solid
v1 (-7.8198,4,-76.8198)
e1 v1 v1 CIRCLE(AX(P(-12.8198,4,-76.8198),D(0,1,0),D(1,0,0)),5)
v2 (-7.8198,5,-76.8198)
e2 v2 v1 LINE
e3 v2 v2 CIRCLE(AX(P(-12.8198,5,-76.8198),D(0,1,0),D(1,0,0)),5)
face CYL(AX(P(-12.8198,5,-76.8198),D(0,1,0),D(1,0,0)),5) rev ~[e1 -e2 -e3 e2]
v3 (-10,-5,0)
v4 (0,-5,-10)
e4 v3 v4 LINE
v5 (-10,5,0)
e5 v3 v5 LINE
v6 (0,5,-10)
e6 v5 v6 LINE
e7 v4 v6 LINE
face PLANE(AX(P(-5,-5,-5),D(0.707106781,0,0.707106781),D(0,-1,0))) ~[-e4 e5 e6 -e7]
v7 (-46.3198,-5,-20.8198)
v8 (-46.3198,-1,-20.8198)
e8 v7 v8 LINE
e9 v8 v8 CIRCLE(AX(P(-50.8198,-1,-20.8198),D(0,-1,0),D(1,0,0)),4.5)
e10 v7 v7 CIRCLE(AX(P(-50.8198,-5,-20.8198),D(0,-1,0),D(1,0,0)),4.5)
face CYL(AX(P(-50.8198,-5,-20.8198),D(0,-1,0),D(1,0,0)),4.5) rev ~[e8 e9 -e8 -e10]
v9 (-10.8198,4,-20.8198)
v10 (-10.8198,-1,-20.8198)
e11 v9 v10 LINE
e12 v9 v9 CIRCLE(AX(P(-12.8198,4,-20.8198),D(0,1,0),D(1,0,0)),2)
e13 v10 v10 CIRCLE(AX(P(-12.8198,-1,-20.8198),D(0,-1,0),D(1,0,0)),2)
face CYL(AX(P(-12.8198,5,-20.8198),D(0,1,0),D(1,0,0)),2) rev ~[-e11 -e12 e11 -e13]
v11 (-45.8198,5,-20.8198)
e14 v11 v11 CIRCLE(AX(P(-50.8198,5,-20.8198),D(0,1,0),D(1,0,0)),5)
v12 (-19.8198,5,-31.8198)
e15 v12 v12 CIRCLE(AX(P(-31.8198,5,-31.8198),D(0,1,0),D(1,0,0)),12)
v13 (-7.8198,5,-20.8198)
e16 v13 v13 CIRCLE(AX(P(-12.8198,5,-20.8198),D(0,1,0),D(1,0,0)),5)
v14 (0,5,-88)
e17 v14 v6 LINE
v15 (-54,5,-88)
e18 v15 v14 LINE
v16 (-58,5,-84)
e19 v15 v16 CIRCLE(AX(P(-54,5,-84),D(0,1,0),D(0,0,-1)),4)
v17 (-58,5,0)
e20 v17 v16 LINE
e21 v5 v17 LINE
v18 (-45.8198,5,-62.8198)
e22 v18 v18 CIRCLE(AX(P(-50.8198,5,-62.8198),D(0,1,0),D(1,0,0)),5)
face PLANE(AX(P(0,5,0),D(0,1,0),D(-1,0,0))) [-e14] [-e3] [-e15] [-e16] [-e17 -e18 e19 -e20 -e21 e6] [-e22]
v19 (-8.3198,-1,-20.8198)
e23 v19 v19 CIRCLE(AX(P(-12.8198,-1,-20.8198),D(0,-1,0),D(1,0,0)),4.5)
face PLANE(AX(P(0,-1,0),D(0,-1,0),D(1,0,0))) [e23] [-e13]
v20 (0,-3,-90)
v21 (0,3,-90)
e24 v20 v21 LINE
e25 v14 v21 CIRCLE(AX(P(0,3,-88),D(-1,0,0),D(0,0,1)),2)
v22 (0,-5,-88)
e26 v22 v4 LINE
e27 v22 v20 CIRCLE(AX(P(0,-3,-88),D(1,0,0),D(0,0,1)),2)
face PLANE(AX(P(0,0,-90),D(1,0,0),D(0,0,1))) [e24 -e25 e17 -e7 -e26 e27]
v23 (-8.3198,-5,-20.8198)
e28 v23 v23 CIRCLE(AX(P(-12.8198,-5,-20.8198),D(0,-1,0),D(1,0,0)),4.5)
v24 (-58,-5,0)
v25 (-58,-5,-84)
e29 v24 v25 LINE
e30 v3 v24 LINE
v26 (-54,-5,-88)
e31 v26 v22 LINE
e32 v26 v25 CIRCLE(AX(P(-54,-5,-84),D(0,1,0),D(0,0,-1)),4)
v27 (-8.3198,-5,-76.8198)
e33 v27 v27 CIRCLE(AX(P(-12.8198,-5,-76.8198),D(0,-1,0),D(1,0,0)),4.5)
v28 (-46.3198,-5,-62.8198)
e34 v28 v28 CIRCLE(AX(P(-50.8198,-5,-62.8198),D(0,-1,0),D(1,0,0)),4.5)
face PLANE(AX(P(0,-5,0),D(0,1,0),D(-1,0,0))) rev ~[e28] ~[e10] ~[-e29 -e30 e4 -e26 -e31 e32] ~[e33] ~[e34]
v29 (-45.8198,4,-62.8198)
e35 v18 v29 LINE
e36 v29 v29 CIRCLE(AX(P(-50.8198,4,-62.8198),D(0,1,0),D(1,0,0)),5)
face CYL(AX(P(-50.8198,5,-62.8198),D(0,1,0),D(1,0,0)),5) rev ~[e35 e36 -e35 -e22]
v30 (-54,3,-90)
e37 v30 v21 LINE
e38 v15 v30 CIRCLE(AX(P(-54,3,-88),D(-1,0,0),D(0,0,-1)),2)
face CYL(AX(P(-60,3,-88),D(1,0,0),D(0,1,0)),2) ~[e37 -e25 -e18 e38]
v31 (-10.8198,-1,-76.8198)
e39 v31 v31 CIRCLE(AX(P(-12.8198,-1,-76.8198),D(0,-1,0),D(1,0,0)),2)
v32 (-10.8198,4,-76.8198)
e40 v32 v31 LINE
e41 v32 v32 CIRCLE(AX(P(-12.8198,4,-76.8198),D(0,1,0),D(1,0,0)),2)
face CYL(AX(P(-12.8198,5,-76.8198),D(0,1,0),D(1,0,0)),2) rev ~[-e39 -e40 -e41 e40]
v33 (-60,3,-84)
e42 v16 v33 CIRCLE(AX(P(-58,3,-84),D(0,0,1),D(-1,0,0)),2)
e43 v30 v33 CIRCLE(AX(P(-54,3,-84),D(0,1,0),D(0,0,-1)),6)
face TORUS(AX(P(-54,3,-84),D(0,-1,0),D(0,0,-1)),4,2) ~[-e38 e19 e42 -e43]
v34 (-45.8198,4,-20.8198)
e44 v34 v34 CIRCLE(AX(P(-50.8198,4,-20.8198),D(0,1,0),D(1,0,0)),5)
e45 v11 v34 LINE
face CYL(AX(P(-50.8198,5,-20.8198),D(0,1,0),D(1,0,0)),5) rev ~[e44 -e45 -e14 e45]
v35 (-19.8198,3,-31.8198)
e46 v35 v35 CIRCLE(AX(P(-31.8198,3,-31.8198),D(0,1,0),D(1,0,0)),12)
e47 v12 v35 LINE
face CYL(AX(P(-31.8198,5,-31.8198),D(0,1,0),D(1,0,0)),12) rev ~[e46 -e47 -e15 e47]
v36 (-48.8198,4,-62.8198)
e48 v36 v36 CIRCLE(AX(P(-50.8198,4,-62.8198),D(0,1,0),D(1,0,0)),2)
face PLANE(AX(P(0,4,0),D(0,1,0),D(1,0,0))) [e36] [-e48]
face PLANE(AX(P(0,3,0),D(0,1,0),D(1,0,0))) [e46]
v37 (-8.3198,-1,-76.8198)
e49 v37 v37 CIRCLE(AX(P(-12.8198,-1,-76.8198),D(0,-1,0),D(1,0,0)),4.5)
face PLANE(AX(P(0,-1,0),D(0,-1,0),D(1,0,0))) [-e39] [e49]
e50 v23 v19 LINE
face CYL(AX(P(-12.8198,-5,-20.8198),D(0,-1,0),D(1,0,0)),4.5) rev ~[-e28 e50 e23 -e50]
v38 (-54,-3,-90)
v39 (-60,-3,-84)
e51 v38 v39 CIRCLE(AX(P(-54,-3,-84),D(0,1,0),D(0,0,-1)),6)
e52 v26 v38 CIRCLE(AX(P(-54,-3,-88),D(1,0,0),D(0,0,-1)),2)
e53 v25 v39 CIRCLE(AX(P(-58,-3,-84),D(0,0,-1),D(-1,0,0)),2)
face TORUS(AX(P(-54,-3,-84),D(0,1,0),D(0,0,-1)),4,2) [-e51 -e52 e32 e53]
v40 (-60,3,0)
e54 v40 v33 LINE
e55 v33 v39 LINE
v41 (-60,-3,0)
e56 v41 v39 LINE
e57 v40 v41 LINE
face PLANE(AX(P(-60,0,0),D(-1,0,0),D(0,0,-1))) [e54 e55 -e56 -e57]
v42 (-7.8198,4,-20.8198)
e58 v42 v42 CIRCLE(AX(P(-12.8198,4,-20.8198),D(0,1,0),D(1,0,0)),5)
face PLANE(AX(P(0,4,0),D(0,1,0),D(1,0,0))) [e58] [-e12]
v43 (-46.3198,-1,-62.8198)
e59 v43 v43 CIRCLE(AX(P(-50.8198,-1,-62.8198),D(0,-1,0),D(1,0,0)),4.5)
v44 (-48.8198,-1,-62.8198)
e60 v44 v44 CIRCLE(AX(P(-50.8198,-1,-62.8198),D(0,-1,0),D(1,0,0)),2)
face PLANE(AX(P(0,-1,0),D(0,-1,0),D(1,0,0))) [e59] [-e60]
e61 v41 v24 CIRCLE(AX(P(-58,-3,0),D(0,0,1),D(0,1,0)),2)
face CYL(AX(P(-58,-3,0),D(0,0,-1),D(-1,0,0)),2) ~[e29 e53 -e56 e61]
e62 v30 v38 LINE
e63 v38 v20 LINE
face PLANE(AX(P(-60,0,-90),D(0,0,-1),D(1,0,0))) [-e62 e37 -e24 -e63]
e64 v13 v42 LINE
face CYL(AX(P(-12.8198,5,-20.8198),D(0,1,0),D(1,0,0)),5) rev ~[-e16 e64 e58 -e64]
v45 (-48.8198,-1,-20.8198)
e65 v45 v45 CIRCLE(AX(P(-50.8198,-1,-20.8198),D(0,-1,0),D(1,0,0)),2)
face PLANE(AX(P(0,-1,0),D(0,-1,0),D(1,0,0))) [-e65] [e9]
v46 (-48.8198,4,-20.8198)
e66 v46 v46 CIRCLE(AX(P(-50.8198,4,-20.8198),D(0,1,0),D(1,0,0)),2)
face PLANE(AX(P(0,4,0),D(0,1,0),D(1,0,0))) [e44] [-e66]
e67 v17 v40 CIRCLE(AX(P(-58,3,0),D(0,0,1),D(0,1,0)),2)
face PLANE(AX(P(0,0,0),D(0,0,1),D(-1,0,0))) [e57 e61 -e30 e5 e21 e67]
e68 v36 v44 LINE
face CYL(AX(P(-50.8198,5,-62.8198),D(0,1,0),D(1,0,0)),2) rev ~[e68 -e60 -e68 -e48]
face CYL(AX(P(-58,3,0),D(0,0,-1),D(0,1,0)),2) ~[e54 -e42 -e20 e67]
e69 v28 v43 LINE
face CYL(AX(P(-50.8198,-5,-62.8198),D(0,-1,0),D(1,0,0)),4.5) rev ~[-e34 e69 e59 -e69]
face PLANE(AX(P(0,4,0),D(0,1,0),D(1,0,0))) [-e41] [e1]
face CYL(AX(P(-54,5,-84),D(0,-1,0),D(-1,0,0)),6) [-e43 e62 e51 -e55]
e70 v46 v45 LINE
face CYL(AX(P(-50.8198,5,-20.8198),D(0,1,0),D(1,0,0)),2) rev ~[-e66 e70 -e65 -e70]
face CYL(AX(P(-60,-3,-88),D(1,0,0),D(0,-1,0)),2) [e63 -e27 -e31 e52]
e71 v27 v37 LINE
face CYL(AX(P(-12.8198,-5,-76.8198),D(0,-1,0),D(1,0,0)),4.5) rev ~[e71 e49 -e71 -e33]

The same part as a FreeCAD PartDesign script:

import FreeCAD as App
import Part
import Sketcher
from FreeCAD import Vector


def edges_at(feature, points):
    """Names of the edges that pass closest to the given points."""
    edges = feature.Shape.Edges
    near = lambda p: min(range(len(edges)), key=lambda i: edges[i].distToShape(Part.Vertex(*p))[0])
    return sorted({f"Edge{near(p) + 1}" for p in points})


def add_polygon(sketch, points):
    """Adds a closed chain of lines whose ends are joined by coincident constraints."""
    first, n = sketch.GeometryCount, len(points)
    for a, b in zip(points, points[1:] + points[:1]):
        sketch.addGeometry(Part.LineSegment(App.Vector(*a, 0), App.Vector(*b, 0)), False)
    for i in range(n):
        sketch.addConstraint(Sketcher.Constraint("Coincident", first + i, 2, first + (i + 1) % n, 1))

doc = App.newDocument("Part")
body = doc.addObject("PartDesign::Body", "Body")

sketch1 = body.newObject("Sketcher::SketchObject", "Sketch")
sketch1.AttachmentSupport = (doc.getObject("XZ_Plane"), [""])
sketch1.MapMode = "FlatFace"
add_polygon(sketch1, [(-60, 0), (0, 0), (0, -90), (-60, -90)])
sketch1.addConstraint([
    Sketcher.Constraint("Horizontal", 0),
    Sketcher.Constraint("Vertical", 1),
    Sketcher.Constraint("Horizontal", 2),
    Sketcher.Constraint("Vertical", 3),
    Sketcher.Constraint("Coincident", 0, 2, -1, 1),
    Sketcher.Constraint("DistanceX", 0, 1, 0, 2, 60.0),
    Sketcher.Constraint("DistanceY", 1, 2, 1, 1, 90.0),
])
pad1 = body.newObject("PartDesign::Pad", "Pad")
pad1.Profile = sketch1
pad1.Length = 10
pad1.Midplane = True

sketch2 = body.newObject("Sketcher::SketchObject", "Sketch001")
sketch2.AttachmentSupport = (doc.getObject("XZ_Plane"), [""])
sketch2.MapMode = "FlatFace"
sketch2.AttachmentOffset = App.Placement(Vector(0, 0, -5), App.Rotation())
sketch2.addGeometry(Part.Circle(Vector(-32, -32, 0), Vector(0, 0, 1), 12), False)
sketch2.addConstraint([
    Sketcher.Constraint("Diameter", 0, 24.0),
    Sketcher.Constraint("DistanceX", 0, 3, -1, 1, 31.8198),
    Sketcher.Constraint("DistanceY", 0, 3, -1, 1, 31.8198),
])
pocket1 = body.newObject("PartDesign::Pocket", "Pocket")
pocket1.Profile = sketch2
pocket1.Length = 2
pocket1.Reversed = True
doc.recompute()

chamfer = body.newObject("PartDesign::Chamfer", "Chamfer")
chamfer.Base = (pocket1, edges_at(pocket1, [(0, 0, 0)]))
chamfer.Size = 10
doc.recompute()

fillet = body.newObject("PartDesign::Fillet", "Fillet")
fillet.Base = (chamfer, edges_at(chamfer, [(-60, 0, -90)]))
fillet.Radius = 6
doc.recompute()

fillet2 = body.newObject("PartDesign::Fillet", "Fillet001")
fillet2.Base = (fillet, edges_at(fillet, [
    (-30, 5, -90),
    (-30, -5, -90),
    (-60, -5, -45),
    (-60, 5, -45),
]))
fillet2.Radius = 2

sketch3 = body.newObject("Sketcher::SketchObject", "Sketch002")
sketch3.AttachmentSupport = (doc.getObject("XZ_Plane"), [""])
sketch3.MapMode = "FlatFace"
sketch3.AttachmentOffset = App.Placement(Vector(0, 0, -5), App.Rotation())
sketch3.addGeometry([
    Part.Circle(Vector(-12.8, -20.8, 0), Vector(0, 0, 1), 2),
    Part.Circle(Vector(-50.8, -20.8, 0), Vector(0, 0, 1), 2),
    Part.Circle(Vector(-12.8, -76.8, 0), Vector(0, 0, 1), 2),
    Part.Circle(Vector(-50.8, -62.8, 0), Vector(0, 0, 1), 2),
], False)
sketch3.addConstraint([
    Sketcher.Constraint("Equal", 0, 1),
    Sketcher.Constraint("Equal", 1, 2),
    Sketcher.Constraint("Equal", 2, 3),
    Sketcher.Constraint("Horizontal", 0, 3, 1, 3),
    Sketcher.Constraint("Vertical", 0, 3, 2, 3),
    Sketcher.Constraint("Vertical", 1, 3, 3, 3),
    Sketcher.Constraint("Diameter", 0, 4.0),
    Sketcher.Constraint("DistanceX", 1, 3, 0, 3, 38.0),
    Sketcher.Constraint("DistanceY", 2, 3, 0, 3, 56.0),
    Sketcher.Constraint("DistanceY", 2, 3, 3, 3, 14.0),
    Sketcher.Constraint("DistanceX", 0, 3, -1, 1, 12.8198),
    Sketcher.Constraint("DistanceY", 0, 3, -1, 1, 20.8198),
])
pocket2 = body.newObject("PartDesign::Pocket", "Pocket001")
pocket2.Profile = sketch3
pocket2.Length = 10
pocket2.Reversed = True

sketch4 = body.newObject("Sketcher::SketchObject", "Sketch003")
sketch4.AttachmentSupport = (doc.getObject("XZ_Plane"), [""])
sketch4.MapMode = "FlatFace"
sketch4.AttachmentOffset = App.Placement(Vector(0, 0, 5), App.Rotation())
sketch4.addGeometry([
    Part.Circle(Vector(-50.8, -20.8, 0), Vector(0, 0, 1), 4.5),
    Part.Circle(Vector(-50.8, -20.8, 0), Vector(0, 0, 1), 2),
    Part.Circle(Vector(-12.8, -20.8, 0), Vector(0, 0, 1), 4.5),
    Part.Circle(Vector(-12.8, -20.8, 0), Vector(0, 0, 1), 2),
    Part.Circle(Vector(-50.8, -62.8, 0), Vector(0, 0, 1), 4.5),
    Part.Circle(Vector(-50.8, -62.8, 0), Vector(0, 0, 1), 2),
    Part.Circle(Vector(-12.8, -76.8, 0), Vector(0, 0, 1), 4.5),
    Part.Circle(Vector(-12.8, -76.8, 0), Vector(0, 0, 1), 2),
], False)
sketch4.addConstraint([
    Sketcher.Constraint("Coincident", 1, 3, 0, 3),
    Sketcher.Constraint("Coincident", 3, 3, 2, 3),
    Sketcher.Constraint("Coincident", 5, 3, 4, 3),
    Sketcher.Constraint("Coincident", 7, 3, 6, 3),
    Sketcher.Constraint("Equal", 0, 2),
    Sketcher.Constraint("Equal", 1, 3),
    Sketcher.Constraint("Equal", 2, 4),
    Sketcher.Constraint("Equal", 3, 5),
    Sketcher.Constraint("Equal", 4, 6),
    Sketcher.Constraint("Equal", 5, 7),
    Sketcher.Constraint("Horizontal", 1, 3, 2, 3),
    Sketcher.Constraint("Vertical", 1, 3, 4, 3),
    Sketcher.Constraint("Vertical", 3, 3, 6, 3),
    Sketcher.Constraint("Diameter", 0, 9.0),
    Sketcher.Constraint("Diameter", 1, 4.0),
    Sketcher.Constraint("DistanceX", 0, 3, 2, 3, 38.0),
    Sketcher.Constraint("DistanceY", 4, 3, 0, 3, 42.0),
    Sketcher.Constraint("DistanceY", 6, 3, 4, 3, 14.0),
    Sketcher.Constraint("DistanceX", 0, 3, -1, 1, 50.8198),
    Sketcher.Constraint("DistanceY", 0, 3, -1, 1, 20.8198),
])
pocket3 = body.newObject("PartDesign::Pocket", "Pocket002")
pocket3.Profile = sketch4
pocket3.Length = 4

sketch5 = body.newObject("Sketcher::SketchObject", "Sketch004")
sketch5.AttachmentSupport = (doc.getObject("XZ_Plane"), [""])
sketch5.MapMode = "FlatFace"
sketch5.AttachmentOffset = App.Placement(Vector(0, 0, -5), App.Rotation())
sketch5.addGeometry([
    Part.Circle(Vector(-12.8, -20.8, 0), Vector(0, 0, 1), 5),
    Part.Circle(Vector(-12.8, -20.8, 0), Vector(0, 0, 1), 2),
    Part.Circle(Vector(-50.8, -20.8, 0), Vector(0, 0, 1), 5),
    Part.Circle(Vector(-50.8, -20.8, 0), Vector(0, 0, 1), 2),
    Part.Circle(Vector(-12.8, -76.8, 0), Vector(0, 0, 1), 5),
    Part.Circle(Vector(-12.8, -76.8, 0), Vector(0, 0, 1), 2),
    Part.Circle(Vector(-50.8, -62.8, 0), Vector(0, 0, 1), 5),
    Part.Circle(Vector(-50.8, -62.8, 0), Vector(0, 0, 1), 2),
], False)
sketch5.addConstraint([
    Sketcher.Constraint("Coincident", 1, 3, 0, 3),
    Sketcher.Constraint("Coincident", 3, 3, 2, 3),
    Sketcher.Constraint("Coincident", 5, 3, 4, 3),
    Sketcher.Constraint("Coincident", 7, 3, 6, 3),
    Sketcher.Constraint("Equal", 0, 2),
    Sketcher.Constraint("Equal", 1, 3),
    Sketcher.Constraint("Equal", 2, 4),
    Sketcher.Constraint("Equal", 3, 5),
    Sketcher.Constraint("Equal", 4, 6),
    Sketcher.Constraint("Equal", 5, 7),
    Sketcher.Constraint("Horizontal", 1, 3, 2, 3),
    Sketcher.Constraint("Vertical", 1, 3, 4, 3),
    Sketcher.Constraint("Vertical", 3, 3, 6, 3),
    Sketcher.Constraint("Diameter", 0, 10.0),
    Sketcher.Constraint("Diameter", 1, 4.0),
    Sketcher.Constraint("DistanceX", 2, 3, 0, 3, 38.0),
    Sketcher.Constraint("DistanceY", 4, 3, 0, 3, 56.0),
    Sketcher.Constraint("DistanceY", 4, 3, 6, 3, 14.0),
    Sketcher.Constraint("DistanceX", 0, 3, -1, 1, 12.8198),
    Sketcher.Constraint("DistanceY", 0, 3, -1, 1, 20.8198),
])
pocket4 = body.newObject("PartDesign::Pocket", "Pocket003")
pocket4.Profile = sketch5
pocket4.Length = 1
pocket4.Reversed = True

doc.recompute()
